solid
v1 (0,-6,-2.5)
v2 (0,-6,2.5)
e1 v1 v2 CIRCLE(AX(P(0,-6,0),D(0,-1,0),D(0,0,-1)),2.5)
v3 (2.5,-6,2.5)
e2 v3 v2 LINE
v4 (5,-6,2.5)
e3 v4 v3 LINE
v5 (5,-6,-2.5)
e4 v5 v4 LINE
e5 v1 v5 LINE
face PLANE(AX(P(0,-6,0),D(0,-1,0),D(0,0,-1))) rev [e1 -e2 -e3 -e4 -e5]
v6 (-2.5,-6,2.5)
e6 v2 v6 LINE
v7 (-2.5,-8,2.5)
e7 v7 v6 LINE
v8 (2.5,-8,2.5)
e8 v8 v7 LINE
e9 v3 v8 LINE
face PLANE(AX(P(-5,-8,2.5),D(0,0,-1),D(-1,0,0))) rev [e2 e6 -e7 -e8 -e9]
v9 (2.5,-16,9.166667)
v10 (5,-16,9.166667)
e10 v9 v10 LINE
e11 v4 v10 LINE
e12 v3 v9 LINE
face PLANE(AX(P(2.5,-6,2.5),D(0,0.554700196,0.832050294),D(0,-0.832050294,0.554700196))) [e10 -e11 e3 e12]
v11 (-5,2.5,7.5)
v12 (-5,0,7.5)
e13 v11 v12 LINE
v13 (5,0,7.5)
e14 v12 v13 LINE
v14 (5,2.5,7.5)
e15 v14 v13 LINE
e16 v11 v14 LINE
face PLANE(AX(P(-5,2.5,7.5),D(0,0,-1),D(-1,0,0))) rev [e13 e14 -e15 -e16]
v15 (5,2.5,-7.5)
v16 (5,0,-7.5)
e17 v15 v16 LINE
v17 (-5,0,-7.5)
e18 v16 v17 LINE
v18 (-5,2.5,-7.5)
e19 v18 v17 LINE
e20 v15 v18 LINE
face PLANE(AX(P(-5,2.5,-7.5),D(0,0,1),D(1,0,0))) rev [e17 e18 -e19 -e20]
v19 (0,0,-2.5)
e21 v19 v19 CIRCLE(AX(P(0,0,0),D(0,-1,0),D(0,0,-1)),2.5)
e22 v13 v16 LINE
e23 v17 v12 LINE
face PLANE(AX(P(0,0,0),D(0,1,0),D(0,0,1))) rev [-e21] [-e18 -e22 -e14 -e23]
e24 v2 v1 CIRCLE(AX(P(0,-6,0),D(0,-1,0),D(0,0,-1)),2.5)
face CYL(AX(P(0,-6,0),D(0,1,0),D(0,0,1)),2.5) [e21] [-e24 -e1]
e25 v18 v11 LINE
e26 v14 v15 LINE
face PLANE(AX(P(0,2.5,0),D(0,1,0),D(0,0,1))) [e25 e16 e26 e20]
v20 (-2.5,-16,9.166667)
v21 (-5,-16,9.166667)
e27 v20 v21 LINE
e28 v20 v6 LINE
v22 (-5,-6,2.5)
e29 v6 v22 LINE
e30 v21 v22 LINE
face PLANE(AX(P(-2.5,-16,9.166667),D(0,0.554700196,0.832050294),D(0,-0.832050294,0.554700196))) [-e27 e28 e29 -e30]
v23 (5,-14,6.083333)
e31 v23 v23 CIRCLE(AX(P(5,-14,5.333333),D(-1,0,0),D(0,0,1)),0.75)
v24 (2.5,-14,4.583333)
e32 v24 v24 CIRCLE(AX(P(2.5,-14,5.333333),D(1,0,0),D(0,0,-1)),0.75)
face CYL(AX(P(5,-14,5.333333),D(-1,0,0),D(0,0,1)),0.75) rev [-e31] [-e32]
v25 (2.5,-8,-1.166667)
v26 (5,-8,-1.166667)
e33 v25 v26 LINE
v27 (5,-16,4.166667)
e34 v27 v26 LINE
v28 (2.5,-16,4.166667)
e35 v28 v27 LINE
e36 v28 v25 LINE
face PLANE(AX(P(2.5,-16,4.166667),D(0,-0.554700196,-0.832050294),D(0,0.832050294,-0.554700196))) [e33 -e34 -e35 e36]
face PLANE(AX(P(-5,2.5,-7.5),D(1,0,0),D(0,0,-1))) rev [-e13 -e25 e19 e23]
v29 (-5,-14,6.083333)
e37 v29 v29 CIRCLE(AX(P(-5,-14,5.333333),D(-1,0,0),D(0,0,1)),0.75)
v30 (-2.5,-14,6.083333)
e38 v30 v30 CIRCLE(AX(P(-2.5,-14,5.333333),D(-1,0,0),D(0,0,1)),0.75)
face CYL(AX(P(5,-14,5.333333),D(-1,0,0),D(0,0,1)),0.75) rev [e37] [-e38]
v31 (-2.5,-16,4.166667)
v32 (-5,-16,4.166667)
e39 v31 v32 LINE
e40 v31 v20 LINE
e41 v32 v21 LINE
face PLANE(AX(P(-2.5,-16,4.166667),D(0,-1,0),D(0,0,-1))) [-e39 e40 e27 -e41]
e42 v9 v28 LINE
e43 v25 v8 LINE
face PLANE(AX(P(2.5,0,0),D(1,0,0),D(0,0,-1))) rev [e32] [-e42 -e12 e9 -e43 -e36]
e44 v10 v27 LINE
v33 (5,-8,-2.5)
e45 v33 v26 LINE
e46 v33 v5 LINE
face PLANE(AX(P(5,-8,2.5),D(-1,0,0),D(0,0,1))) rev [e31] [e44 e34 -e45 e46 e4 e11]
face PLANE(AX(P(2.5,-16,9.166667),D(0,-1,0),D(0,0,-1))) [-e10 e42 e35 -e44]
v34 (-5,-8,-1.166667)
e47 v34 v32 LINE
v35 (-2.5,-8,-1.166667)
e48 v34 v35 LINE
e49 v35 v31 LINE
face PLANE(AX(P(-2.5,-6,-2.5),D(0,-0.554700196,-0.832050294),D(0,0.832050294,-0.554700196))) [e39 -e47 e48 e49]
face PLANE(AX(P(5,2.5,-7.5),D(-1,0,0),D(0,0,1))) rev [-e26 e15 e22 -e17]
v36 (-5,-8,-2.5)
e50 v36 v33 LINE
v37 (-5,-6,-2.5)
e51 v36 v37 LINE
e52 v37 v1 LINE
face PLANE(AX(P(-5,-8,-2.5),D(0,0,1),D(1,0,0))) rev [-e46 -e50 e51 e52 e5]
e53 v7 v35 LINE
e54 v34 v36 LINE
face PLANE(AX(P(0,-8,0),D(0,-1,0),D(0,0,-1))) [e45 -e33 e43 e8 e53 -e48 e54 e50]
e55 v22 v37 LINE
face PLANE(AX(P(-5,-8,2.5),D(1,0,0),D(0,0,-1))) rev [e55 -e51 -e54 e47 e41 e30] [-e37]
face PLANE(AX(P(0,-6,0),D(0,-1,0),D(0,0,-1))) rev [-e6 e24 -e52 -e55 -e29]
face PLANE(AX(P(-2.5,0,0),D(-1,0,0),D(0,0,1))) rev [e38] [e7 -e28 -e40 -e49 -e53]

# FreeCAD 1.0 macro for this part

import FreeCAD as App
import Part
import Sketcher
from FreeCAD import Vector

doc = App.newDocument("Part")
body = doc.addObject("PartDesign::Body", "Body")

# Sketch on XZ plane
sketch1 = body.newObject("Sketcher::SketchObject", "Sketch")
sketch1.AttachmentSupport = (doc.getObject("XZ_Plane"), [""])
sketch1.MapMode = "FlatFace"
sketch1.addGeometry([
    Part.LineSegment(Vector(-5, -8, 0), Vector(-5, 8, 0)),
    Part.LineSegment(Vector(-5, 8, 0), Vector(5, 8, 0)),
    Part.LineSegment(Vector(5, 8, 0), Vector(5, -8, 0)),
    Part.LineSegment(Vector(5, -8, 0), Vector(-5, -8, 0)),
], False)
sketch1.addConstraint([
    Sketcher.Constraint("Coincident", 0, 2, 1, 1),
    Sketcher.Constraint("Coincident", 1, 2, 2, 1),
    Sketcher.Constraint("Coincident", 2, 2, 3, 1),
    Sketcher.Constraint("Coincident", 3, 2, 0, 1),
    Sketcher.Constraint("Vertical", 0),
    Sketcher.Constraint("Horizontal", 1),
    Sketcher.Constraint("Vertical", 2),
    Sketcher.Constraint("Horizontal", 3),
    Sketcher.Constraint("Symmetric", 0, 2, 2, 2, -1, 1),
    Sketcher.Constraint("DistanceX", 1, 1, 1, 2, 10.0),
    Sketcher.Constraint("DistanceY", 0, 1, 0, 2, 15.0),
])
pad1 = body.newObject("PartDesign::Pad", "Pad")
pad1.Profile = sketch1
pad1.Length = 2.5
pad1.Reversed = True

# Sketch on XZ plane
sketch2 = body.newObject("Sketcher::SketchObject", "Sketch001")
sketch2.AttachmentSupport = (doc.getObject("XZ_Plane"), [""])
sketch2.MapMode = "FlatFace"
sketch2.addGeometry(Part.Circle(Vector(0, 0, 0), Vector(0, 0, 1), 2.5), False)
sketch2.addConstraint([
    Sketcher.Constraint("Coincident", 0, 3, -1, 1),
    Sketcher.Constraint("Diameter", 0, 5.0),
])
pad2 = body.newObject("PartDesign::Pad", "Pad001")
pad2.Profile = sketch2
pad2.Length = 6

# Sketch on XZ plane
sketch3 = body.newObject("Sketcher::SketchObject", "Sketch002")
sketch3.AttachmentSupport = (doc.getObject("XZ_Plane"), [""])
sketch3.MapMode = "FlatFace"
sketch3.AttachmentOffset = App.Placement(Vector(0, 0, 6), App.Rotation())
sketch3.addGeometry([
    Part.LineSegment(Vector(-5, 2, 0), Vector(-5, -2, 0)),
    Part.LineSegment(Vector(-5, -2, 0), Vector(5, -2, 0)),
    Part.LineSegment(Vector(5, -2, 0), Vector(5, 2, 0)),
    Part.LineSegment(Vector(5, 2, 0), Vector(-5, 2, 0)),
], False)
sketch3.addConstraint([
    Sketcher.Constraint("Coincident", 0, 2, 1, 1),
    Sketcher.Constraint("Coincident", 1, 2, 2, 1),
    Sketcher.Constraint("Coincident", 2, 2, 3, 1),
    Sketcher.Constraint("Coincident", 3, 2, 0, 1),
    Sketcher.Constraint("Vertical", 0),
    Sketcher.Constraint("Horizontal", 1),
    Sketcher.Constraint("Vertical", 2),
    Sketcher.Constraint("Horizontal", 3),
    Sketcher.Constraint("Symmetric", 0, 2, 2, 2, -1, 1),
    Sketcher.Constraint("DistanceX", 1, 1, 1, 2, 10.0),
    Sketcher.Constraint("DistanceY", 0, 2, 0, 1, 5.0),
])
pad3 = body.newObject("PartDesign::Pad", "Pad002")
pad3.Profile = sketch3
pad3.Length = 2

# Sketch on YZ plane
sketch4 = body.newObject("Sketcher::SketchObject", "Sketch003")
sketch4.AttachmentSupport = (doc.getObject("YZ_Plane"), [""])
sketch4.MapMode = "FlatFace"
sketch4.AttachmentOffset = App.Placement(Vector(0, 0, -5), App.Rotation())
sketch4.addGeometry([
    Part.LineSegment(Vector(-6, 2.5, 0), Vector(-6, -2.5, 0)),
    Part.LineSegment(Vector(-6, -2.5, 0), Vector(-16, 4.2, 0)),
    Part.LineSegment(Vector(-16, 4.2, 0), Vector(-16, 9.2, 0)),
    Part.LineSegment(Vector(-16, 9.2, 0), Vector(-6, 2.5, 0)),
], False)
sketch4.addConstraint([
    Sketcher.Constraint("Coincident", 0, 2, 1, 1),
    Sketcher.Constraint("Coincident", 1, 2, 2, 1),
    Sketcher.Constraint("Coincident", 2, 2, 3, 1),
    Sketcher.Constraint("Coincident", 3, 2, 0, 1),
    Sketcher.Constraint("Vertical", 0),
    Sketcher.Constraint("Vertical", 2),
    Sketcher.Constraint("Parallel", 1, 3),
    Sketcher.Constraint("DistanceY", 0, 2, 0, 1, 5.0),
    Sketcher.Constraint("DistanceX", 0, 2, -1, 1, 6.0),
    Sketcher.Constraint("DistanceX", 1, 2, -1, 1, 16.0),
    Sketcher.Constraint("DistanceY", 0, 2, -1, 1, 2.5),
    Sketcher.Constraint("Distance", 1, 12.018504),
])
pad4 = body.newObject("PartDesign::Pad", "Pad003")
pad4.Profile = sketch4
pad4.Length = 2.5

# Sketch on YZ plane
sketch5 = body.newObject("Sketcher::SketchObject", "Sketch004")
sketch5.AttachmentSupport = (doc.getObject("YZ_Plane"), [""])
sketch5.MapMode = "FlatFace"
sketch5.AttachmentOffset = App.Placement(Vector(0, 0, 5), App.Rotation())
sketch5.addGeometry([
    Part.LineSegment(Vector(-6, -2.5, 0), Vector(-6, 2.5, 0)),
    Part.LineSegment(Vector(-6, 2.5, 0), Vector(-16, 9.2, 0)),
    Part.LineSegment(Vector(-16, 9.2, 0), Vector(-16, 4.2, 0)),
    Part.LineSegment(Vector(-16, 4.2, 0), Vector(-6, -2.5, 0)),
], False)
sketch5.addConstraint([
    Sketcher.Constraint("Coincident", 0, 2, 1, 1),
    Sketcher.Constraint("Coincident", 1, 2, 2, 1),
    Sketcher.Constraint("Coincident", 2, 2, 3, 1),
    Sketcher.Constraint("Coincident", 3, 2, 0, 1),
    Sketcher.Constraint("Vertical", 0),
    Sketcher.Constraint("Vertical", 2),
    Sketcher.Constraint("Parallel", 1, 3),
    Sketcher.Constraint("DistanceY", 0, 1, 0, 2, 5.0),
    Sketcher.Constraint("DistanceX", 0, 2, -1, 1, 6.0),
    Sketcher.Constraint("DistanceX", 1, 2, -1, 1, 16.0),
    Sketcher.Constraint("DistanceY", -1, 1, 0, 2, 2.5),
    Sketcher.Constraint("Distance", 1, 12.018504),
])
pad5 = body.newObject("PartDesign::Pad", "Pad004")
pad5.Profile = sketch5
pad5.Length = 2.5
pad5.Reversed = True

# Sketch on YZ plane
sketch6 = body.newObject("Sketcher::SketchObject", "Sketch005")
sketch6.AttachmentSupport = (doc.getObject("YZ_Plane"), [""])
sketch6.MapMode = "FlatFace"
sketch6.AttachmentOffset = App.Placement(Vector(0, 0, -5), App.Rotation())
sketch6.addGeometry(Part.Circle(Vector(-14, 5.3, 0), Vector(0, 0, 1), 0.8), False)
sketch6.addConstraint([
    Sketcher.Constraint("Diameter", 0, 1.5),
    Sketcher.Constraint("DistanceX", 0, 3, -1, 1, 14.0),
    Sketcher.Constraint("DistanceY", -1, 1, 0, 3, 5.333333),
])
pocket1 = body.newObject("PartDesign::Pocket", "Pocket")
pocket1.Profile = sketch6
pocket1.Type = "ThroughAll"
pocket1.Reversed = True

doc.recompute()
